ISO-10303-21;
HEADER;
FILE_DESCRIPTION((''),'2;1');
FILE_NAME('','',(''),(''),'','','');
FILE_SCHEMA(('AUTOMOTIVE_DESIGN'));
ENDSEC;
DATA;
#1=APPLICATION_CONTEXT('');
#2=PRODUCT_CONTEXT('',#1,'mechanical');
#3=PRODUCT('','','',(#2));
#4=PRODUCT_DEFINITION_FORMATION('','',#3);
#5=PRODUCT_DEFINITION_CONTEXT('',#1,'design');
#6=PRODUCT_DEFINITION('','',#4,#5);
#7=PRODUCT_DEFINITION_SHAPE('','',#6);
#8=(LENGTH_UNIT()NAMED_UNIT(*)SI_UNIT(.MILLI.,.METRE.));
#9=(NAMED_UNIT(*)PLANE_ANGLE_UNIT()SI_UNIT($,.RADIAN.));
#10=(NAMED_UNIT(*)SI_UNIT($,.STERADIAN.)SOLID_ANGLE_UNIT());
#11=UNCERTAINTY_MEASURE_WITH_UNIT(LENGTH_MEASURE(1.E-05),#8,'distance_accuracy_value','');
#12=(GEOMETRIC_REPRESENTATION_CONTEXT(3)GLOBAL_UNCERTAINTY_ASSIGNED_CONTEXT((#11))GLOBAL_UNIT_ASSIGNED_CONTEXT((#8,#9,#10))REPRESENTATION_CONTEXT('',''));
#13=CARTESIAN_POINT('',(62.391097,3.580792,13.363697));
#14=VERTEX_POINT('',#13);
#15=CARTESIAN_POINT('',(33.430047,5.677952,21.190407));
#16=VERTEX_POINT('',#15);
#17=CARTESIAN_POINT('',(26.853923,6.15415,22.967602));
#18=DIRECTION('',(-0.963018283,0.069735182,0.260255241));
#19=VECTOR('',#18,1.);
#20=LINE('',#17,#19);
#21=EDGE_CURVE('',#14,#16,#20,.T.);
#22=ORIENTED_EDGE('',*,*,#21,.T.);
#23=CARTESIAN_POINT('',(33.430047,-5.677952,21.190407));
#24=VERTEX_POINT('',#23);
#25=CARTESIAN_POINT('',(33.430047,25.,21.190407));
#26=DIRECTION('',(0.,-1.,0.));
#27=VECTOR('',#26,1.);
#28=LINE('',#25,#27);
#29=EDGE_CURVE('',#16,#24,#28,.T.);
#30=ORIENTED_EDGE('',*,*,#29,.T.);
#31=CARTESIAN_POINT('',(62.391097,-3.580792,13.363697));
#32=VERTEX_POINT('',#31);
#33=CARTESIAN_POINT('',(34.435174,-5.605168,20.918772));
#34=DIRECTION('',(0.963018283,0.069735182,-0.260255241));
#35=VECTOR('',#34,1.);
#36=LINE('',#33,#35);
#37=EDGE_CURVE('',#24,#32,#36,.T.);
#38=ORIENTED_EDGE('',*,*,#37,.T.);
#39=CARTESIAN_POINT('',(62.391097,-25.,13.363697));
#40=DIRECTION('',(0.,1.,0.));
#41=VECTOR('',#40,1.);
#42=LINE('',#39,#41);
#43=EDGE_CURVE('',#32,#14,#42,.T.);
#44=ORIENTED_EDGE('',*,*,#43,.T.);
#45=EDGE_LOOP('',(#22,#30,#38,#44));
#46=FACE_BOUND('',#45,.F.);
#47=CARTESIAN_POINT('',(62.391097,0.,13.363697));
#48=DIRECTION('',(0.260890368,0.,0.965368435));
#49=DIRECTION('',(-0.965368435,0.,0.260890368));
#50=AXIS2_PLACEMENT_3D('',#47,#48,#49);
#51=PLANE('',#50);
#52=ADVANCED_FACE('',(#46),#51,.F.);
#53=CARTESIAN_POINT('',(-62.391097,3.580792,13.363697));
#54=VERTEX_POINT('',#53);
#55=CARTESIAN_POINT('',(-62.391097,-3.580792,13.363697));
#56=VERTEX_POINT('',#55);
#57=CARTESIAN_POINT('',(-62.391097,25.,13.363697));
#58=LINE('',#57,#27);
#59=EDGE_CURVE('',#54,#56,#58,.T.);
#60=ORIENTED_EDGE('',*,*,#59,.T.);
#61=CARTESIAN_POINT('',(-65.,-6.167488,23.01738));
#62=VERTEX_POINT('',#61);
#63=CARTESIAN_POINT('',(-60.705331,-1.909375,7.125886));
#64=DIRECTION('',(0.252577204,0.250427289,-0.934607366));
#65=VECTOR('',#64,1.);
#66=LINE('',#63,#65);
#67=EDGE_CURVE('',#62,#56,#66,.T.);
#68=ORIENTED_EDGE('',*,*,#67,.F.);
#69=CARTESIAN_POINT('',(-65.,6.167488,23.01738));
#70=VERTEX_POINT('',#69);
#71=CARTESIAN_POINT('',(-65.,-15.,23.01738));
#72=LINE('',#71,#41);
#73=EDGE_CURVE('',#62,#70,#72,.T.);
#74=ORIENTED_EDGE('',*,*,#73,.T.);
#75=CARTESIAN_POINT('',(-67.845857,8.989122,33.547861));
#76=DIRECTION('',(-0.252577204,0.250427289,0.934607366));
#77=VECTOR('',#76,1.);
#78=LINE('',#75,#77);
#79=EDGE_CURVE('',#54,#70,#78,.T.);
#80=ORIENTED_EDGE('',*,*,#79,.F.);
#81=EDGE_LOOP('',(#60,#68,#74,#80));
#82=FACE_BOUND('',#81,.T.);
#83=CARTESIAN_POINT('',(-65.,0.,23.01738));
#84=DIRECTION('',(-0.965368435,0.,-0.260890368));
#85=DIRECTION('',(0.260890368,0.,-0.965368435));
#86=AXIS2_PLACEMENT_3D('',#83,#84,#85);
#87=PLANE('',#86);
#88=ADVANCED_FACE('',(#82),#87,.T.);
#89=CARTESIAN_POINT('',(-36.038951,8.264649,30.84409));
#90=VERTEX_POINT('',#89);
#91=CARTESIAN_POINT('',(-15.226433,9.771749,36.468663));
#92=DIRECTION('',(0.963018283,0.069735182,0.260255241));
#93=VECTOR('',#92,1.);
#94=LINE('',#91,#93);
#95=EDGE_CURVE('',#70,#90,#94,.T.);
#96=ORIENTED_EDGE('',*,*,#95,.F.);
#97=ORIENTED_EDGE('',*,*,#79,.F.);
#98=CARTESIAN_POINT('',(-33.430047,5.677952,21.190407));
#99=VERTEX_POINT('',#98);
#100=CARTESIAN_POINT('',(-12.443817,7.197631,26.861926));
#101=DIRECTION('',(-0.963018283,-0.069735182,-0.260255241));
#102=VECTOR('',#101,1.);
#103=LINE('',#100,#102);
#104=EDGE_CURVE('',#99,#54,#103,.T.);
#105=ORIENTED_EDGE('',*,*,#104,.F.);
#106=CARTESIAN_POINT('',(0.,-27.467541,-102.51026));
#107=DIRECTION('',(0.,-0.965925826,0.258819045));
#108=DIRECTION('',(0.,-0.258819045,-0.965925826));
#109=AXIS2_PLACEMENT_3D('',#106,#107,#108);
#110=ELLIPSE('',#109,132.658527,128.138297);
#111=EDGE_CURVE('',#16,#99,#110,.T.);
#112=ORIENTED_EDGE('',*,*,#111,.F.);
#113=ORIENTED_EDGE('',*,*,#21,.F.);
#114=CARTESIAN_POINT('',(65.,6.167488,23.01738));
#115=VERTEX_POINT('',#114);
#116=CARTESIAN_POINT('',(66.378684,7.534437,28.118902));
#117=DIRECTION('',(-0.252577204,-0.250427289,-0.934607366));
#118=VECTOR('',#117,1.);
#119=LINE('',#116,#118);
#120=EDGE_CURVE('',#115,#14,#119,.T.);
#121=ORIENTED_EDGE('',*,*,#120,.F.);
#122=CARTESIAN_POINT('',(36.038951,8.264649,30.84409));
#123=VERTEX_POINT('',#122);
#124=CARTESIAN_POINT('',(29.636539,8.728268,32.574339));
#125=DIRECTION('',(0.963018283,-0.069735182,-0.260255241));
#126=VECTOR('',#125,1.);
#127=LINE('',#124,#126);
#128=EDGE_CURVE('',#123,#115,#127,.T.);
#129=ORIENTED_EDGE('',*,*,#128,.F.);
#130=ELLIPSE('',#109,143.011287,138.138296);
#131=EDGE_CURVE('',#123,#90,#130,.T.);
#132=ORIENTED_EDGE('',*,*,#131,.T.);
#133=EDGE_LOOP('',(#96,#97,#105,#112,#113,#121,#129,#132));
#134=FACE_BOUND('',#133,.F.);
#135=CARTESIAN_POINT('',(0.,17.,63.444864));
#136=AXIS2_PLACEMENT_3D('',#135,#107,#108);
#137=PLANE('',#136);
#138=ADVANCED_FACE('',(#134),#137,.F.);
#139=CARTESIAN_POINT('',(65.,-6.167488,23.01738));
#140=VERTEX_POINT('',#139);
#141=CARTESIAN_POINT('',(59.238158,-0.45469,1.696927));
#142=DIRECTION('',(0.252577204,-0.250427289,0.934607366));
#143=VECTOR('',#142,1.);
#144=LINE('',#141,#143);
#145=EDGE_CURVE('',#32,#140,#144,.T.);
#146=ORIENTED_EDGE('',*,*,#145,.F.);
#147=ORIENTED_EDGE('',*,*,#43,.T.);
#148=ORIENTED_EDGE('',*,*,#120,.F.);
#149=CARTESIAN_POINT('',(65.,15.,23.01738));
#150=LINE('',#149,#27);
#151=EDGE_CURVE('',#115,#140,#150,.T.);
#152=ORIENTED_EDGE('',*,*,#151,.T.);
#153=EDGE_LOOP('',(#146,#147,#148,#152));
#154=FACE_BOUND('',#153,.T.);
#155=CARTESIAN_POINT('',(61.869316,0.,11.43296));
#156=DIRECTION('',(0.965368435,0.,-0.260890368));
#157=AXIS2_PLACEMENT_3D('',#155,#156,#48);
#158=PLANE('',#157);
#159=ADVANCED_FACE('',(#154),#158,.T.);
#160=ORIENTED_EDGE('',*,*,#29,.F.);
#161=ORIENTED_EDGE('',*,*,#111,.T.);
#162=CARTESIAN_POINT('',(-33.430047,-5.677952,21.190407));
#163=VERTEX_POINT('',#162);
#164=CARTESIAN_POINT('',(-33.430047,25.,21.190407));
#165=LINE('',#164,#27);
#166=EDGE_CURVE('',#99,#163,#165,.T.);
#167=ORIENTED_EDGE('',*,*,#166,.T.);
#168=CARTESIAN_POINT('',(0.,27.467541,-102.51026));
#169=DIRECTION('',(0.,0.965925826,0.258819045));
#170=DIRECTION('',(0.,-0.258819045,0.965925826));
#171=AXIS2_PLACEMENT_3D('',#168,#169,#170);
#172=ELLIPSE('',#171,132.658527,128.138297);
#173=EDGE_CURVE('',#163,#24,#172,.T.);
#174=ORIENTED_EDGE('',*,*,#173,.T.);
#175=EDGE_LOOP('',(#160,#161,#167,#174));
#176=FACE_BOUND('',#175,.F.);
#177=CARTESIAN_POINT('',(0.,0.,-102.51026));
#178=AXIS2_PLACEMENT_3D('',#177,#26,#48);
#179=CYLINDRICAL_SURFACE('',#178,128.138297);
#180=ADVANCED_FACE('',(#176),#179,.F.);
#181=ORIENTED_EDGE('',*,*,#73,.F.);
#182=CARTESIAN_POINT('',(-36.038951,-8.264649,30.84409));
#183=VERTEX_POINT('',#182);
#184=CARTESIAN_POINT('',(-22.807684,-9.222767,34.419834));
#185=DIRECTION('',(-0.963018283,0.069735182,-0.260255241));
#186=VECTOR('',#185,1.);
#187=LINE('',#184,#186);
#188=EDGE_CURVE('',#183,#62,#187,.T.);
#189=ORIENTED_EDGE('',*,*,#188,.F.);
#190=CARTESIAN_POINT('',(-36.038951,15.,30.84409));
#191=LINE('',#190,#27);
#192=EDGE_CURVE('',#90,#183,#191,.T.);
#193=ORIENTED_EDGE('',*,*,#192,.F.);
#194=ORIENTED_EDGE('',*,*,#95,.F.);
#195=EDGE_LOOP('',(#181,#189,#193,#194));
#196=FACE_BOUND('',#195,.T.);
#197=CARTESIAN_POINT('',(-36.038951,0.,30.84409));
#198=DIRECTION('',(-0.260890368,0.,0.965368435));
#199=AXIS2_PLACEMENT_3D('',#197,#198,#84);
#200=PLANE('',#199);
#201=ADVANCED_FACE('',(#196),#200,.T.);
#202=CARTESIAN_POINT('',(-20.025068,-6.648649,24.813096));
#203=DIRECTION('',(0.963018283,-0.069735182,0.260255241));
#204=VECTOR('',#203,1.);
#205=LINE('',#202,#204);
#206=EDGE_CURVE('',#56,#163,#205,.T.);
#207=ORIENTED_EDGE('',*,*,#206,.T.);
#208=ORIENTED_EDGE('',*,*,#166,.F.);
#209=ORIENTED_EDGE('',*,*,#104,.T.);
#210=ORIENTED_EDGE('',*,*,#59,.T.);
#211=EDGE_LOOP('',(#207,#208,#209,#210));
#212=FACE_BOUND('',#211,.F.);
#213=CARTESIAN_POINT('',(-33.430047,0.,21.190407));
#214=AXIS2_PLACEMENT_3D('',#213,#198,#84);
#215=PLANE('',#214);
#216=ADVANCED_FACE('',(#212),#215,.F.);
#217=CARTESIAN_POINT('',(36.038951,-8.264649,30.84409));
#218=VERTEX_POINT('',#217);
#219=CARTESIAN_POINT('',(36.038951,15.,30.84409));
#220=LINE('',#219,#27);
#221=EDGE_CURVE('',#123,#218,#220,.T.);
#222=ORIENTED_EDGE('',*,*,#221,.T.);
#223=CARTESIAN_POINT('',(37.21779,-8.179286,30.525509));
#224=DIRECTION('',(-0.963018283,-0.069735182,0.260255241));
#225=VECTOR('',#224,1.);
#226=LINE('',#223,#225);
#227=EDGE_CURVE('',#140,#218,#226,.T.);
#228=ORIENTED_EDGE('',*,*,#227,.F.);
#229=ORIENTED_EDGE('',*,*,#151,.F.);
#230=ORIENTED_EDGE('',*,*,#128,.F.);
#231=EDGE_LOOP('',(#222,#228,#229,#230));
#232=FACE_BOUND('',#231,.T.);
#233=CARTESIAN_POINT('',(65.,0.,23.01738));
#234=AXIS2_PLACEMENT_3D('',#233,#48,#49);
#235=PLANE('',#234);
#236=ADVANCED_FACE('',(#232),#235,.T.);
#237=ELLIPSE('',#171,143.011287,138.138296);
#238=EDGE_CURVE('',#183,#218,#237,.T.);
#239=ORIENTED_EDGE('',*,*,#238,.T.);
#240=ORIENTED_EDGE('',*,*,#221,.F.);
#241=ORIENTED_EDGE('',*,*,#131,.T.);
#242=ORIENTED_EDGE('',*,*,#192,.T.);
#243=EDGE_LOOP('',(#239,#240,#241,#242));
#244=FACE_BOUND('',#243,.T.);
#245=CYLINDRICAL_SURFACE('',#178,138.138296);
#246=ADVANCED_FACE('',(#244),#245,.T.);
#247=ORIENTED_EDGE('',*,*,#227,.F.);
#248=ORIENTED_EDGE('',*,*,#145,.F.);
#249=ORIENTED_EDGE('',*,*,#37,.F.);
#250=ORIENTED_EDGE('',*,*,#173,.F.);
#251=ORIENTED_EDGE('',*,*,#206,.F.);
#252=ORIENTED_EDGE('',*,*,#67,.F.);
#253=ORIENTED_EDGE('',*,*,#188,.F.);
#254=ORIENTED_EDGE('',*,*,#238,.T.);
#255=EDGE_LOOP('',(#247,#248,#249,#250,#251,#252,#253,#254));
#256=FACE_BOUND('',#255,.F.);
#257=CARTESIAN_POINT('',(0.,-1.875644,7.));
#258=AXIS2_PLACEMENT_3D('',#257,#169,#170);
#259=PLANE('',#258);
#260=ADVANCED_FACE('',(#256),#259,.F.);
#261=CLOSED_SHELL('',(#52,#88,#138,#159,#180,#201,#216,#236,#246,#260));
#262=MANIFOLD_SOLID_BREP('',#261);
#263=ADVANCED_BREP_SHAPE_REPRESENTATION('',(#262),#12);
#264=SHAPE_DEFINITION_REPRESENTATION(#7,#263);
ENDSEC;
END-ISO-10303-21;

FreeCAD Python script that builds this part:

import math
import FreeCAD as App
import Part
import Sketcher

V = App.Vector
Q = App.Units.Quantity

doc = App.newDocument("Part")
params = doc.addObject("Spreadsheet::Sheet", "Params")
for row, (alias, value) in enumerate([
    ("sketch1_length", "11.999999 mm"),
    ("pad1_length", "30 mm"),
    ("sketch2_width", "34 mm"),
    ("pocket1_length", "200 mm"),
    ("sketch3_length", "2 mm"),
    ("pocket2_length", "50 mm"),
], start=1):
    params.set(f"A{row}", alias)
    params.set(f"B{row}", "=" + value)
    params.setAlias(f"B{row}", alias)

body = doc.addObject("PartDesign::Body", "Body")

sketch1 = body.newObject("Sketcher::SketchObject", "Sketch")
sketch1.AttachmentSupport = (doc.getObject("XZ_Plane"), [""])
sketch1.MapMode = "FlatFace"
sketch1.addGeometry([
    Part.ArcOfCircle(Part.Circle(V(0, -103, 0), V(0, 0, 1), 126), math.radians(75), math.radians(105)),
    Part.LineSegment(V(33, 19, 0), V(62, 11, 0)),
    Part.LineSegment(V(62, 11, 0), V(65, 23, 0)),
    Part.LineSegment(V(65, 23, 0), V(36, 31, 0)),
    Part.ArcOfCircle(Part.Circle(V(0, -103, 0), V(0, 0, 1), 138), math.radians(75), math.radians(105)),
    Part.LineSegment(V(-36, 31, 0), V(-65, 23, 0)),
    Part.LineSegment(V(-65, 23, 0), V(-62, 11, 0)),
    Part.LineSegment(V(-62, 11, 0), V(-33, 19, 0)),
], False)
sketch1.addConstraint([
    Sketcher.Constraint("Tangent", 0, 1, 1, 1),
    Sketcher.Constraint("Coincident", 1, 2, 2, 1),
    Sketcher.Constraint("Coincident", 2, 2, 3, 1),
    Sketcher.Constraint("Tangent", 3, 2, 4, 1),
    Sketcher.Constraint("Tangent", 4, 2, 5, 1),
    Sketcher.Constraint("Coincident", 5, 2, 6, 1),
    Sketcher.Constraint("Coincident", 6, 2, 7, 1),
    Sketcher.Constraint("Tangent", 7, 2, 0, 2),
    Sketcher.Constraint("Coincident", 4, 3, 0, 3),
    Sketcher.Constraint("Symmetric", 3, 2, 4, 2, -2),
    Sketcher.Constraint("Symmetric", 1, 2, 6, 2, -2),
    Sketcher.Constraint("Perpendicular", 1, 2),
    Sketcher.Constraint("Perpendicular", 2, 3),
    Sketcher.Constraint("Perpendicular", 5, 6),
    Sketcher.Constraint("Distance", 2, Q("11.999999 mm")),
    Sketcher.Constraint("DistanceX", -1, 1, 2, 2, Q("65 mm")),
    Sketcher.Constraint("Radius", 0, Q("126.138297 mm")),
    Sketcher.Constraint("DistanceX", 4, 2, 3, 2, Q("72.077902 mm")),
    Sketcher.Constraint("DistanceY", 0, 3, -1, 1, Q("102.51026 mm")),
])
sketch1.setExpression("Constraints[14]", "Params.sketch1_length")
pad1 = body.newObject("PartDesign::Pad", "Pad")
pad1.Profile = sketch1
pad1.setExpression("Length", "Params.pad1_length")
pad1.Midplane = True

sketch2 = body.newObject("Sketcher::SketchObject", "Sketch001")
sketch2.AttachmentSupport = (doc.getObject("YZ_Plane"), [""])
sketch2.MapMode = "FlatFace"
sketch2.addGeometry([
    Part.LineSegment(V(-1.9, 7, 0), V(-17, 63.4, 0)),
    Part.LineSegment(V(-17, 63.4, 0), V(-17, 0, 0)),
    Part.LineSegment(V(-17, 0, 0), V(17, 0, 0)),
    Part.LineSegment(V(17, 0, 0), V(17, 63.4, 0)),
    Part.LineSegment(V(17, 63.4, 0), V(1.9, 7, 0)),
    Part.LineSegment(V(1.9, 7, 0), V(-1.9, 7, 0)),
], False)
sketch2.addConstraint([
    Sketcher.Constraint("Coincident", 0, 2, 1, 1),
    Sketcher.Constraint("Coincident", 1, 2, 2, 1),
    Sketcher.Constraint("Coincident", 2, 2, 3, 1),
    Sketcher.Constraint("Coincident", 3, 2, 4, 1),
    Sketcher.Constraint("Coincident", 4, 2, 5, 1),
    Sketcher.Constraint("Coincident", 5, 2, 0, 1),
    Sketcher.Constraint("Vertical", 1),
    Sketcher.Constraint("Horizontal", 2),
    Sketcher.Constraint("Vertical", 3),
    Sketcher.Constraint("Horizontal", 5),
    Sketcher.Constraint("Symmetric", 1, 2, 2, 2, -1, 1),
    Sketcher.Constraint("Horizontal", 0, 2, 3, 2),
    Sketcher.Constraint("Equal", 0, 4),
    Sketcher.Constraint("DistanceX", 2, 1, 2, 2, Q("34 mm")),
    Sketcher.Constraint("Angle", 0, Q("105 deg")),
    Sketcher.Constraint("DistanceY", -1, 1, 4, 2, Q("7 mm")),
    Sketcher.Constraint("DistanceX", 5, 2, 5, 1, Q("3.751289 mm")),
])
sketch2.setExpression("Constraints[13]", "Params.sketch2_width")
pocket1 = body.newObject("PartDesign::Pocket", "Pocket")
pocket1.Profile = sketch2
pocket1.setExpression("Length", "Params.pocket1_length")
pocket1.Midplane = True

sketch3 = body.newObject("Sketcher::SketchObject", "Sketch002")
sketch3.AttachmentSupport = (doc.getObject("XZ_Plane"), [""])
sketch3.MapMode = "FlatFace"
sketch3.addGeometry([
    Part.LineSegment(V(62.4, 13.4, 0), V(33.4, 21.2, 0)),
    Part.ArcOfCircle(Part.Circle(V(0, -102.5, 0), V(0, 0, 1), 128.1), math.radians(75), math.radians(105)),
    Part.LineSegment(V(-33.4, 21.2, 0), V(-62.4, 13.4, 0)),
    Part.LineSegment(V(-62.4, 13.4, 0), V(-61.9, 11.4, 0)),
    Part.LineSegment(V(-61.9, 11.4, 0), V(-32.9, 19.3, 0)),
    Part.ArcOfCircle(Part.Circle(V(0, -102.5, 0), V(0, 0, 1), 126.1), math.radians(75), math.radians(105)),
    Part.LineSegment(V(32.9, 19.3, 0), V(61.9, 11.4, 0)),
    Part.LineSegment(V(61.9, 11.4, 0), V(62.4, 13.4, 0)),
], False)
sketch3.addConstraint([
    Sketcher.Constraint("Tangent", 0, 2, 1, 1),
    Sketcher.Constraint("Tangent", 1, 2, 2, 1),
    Sketcher.Constraint("Coincident", 2, 2, 3, 1),
    Sketcher.Constraint("Coincident", 3, 2, 4, 1),
    Sketcher.Constraint("Tangent", 4, 2, 5, 2),
    Sketcher.Constraint("Tangent", 5, 1, 6, 1),
    Sketcher.Constraint("Coincident", 6, 2, 7, 1),
    Sketcher.Constraint("Coincident", 7, 2, 0, 1),
    Sketcher.Constraint("Coincident", 5, 3, 1, 3),
    Sketcher.Constraint("Symmetric", 0, 2, 1, 2, -2),
    Sketcher.Constraint("Symmetric", 3, 2, 6, 2, -2),
    Sketcher.Constraint("Perpendicular", 2, 3),
    Sketcher.Constraint("Perpendicular", 3, 4),
    Sketcher.Constraint("Perpendicular", 6, 7),
    Sketcher.Constraint("Distance", 3, Q("2 mm")),
    Sketcher.Constraint("Radius", 1, Q("128.138297 mm")),
    Sketcher.Constraint("DistanceY", 1, 3, -1, 1, Q("102.51026 mm")),
    Sketcher.Constraint("DistanceY", -1, 1, 3, 2, Q("11.43296 mm")),
    Sketcher.Constraint("DistanceY", -1, 1, 4, 2, Q("19.25967 mm")),
])
sketch3.setExpression("Constraints[14]", "Params.sketch3_length")
pocket2 = body.newObject("PartDesign::Pocket", "Pocket001")
pocket2.Profile = sketch3
pocket2.setExpression("Length", "Params.pocket2_length")
pocket2.Midplane = True

doc.recompute()
